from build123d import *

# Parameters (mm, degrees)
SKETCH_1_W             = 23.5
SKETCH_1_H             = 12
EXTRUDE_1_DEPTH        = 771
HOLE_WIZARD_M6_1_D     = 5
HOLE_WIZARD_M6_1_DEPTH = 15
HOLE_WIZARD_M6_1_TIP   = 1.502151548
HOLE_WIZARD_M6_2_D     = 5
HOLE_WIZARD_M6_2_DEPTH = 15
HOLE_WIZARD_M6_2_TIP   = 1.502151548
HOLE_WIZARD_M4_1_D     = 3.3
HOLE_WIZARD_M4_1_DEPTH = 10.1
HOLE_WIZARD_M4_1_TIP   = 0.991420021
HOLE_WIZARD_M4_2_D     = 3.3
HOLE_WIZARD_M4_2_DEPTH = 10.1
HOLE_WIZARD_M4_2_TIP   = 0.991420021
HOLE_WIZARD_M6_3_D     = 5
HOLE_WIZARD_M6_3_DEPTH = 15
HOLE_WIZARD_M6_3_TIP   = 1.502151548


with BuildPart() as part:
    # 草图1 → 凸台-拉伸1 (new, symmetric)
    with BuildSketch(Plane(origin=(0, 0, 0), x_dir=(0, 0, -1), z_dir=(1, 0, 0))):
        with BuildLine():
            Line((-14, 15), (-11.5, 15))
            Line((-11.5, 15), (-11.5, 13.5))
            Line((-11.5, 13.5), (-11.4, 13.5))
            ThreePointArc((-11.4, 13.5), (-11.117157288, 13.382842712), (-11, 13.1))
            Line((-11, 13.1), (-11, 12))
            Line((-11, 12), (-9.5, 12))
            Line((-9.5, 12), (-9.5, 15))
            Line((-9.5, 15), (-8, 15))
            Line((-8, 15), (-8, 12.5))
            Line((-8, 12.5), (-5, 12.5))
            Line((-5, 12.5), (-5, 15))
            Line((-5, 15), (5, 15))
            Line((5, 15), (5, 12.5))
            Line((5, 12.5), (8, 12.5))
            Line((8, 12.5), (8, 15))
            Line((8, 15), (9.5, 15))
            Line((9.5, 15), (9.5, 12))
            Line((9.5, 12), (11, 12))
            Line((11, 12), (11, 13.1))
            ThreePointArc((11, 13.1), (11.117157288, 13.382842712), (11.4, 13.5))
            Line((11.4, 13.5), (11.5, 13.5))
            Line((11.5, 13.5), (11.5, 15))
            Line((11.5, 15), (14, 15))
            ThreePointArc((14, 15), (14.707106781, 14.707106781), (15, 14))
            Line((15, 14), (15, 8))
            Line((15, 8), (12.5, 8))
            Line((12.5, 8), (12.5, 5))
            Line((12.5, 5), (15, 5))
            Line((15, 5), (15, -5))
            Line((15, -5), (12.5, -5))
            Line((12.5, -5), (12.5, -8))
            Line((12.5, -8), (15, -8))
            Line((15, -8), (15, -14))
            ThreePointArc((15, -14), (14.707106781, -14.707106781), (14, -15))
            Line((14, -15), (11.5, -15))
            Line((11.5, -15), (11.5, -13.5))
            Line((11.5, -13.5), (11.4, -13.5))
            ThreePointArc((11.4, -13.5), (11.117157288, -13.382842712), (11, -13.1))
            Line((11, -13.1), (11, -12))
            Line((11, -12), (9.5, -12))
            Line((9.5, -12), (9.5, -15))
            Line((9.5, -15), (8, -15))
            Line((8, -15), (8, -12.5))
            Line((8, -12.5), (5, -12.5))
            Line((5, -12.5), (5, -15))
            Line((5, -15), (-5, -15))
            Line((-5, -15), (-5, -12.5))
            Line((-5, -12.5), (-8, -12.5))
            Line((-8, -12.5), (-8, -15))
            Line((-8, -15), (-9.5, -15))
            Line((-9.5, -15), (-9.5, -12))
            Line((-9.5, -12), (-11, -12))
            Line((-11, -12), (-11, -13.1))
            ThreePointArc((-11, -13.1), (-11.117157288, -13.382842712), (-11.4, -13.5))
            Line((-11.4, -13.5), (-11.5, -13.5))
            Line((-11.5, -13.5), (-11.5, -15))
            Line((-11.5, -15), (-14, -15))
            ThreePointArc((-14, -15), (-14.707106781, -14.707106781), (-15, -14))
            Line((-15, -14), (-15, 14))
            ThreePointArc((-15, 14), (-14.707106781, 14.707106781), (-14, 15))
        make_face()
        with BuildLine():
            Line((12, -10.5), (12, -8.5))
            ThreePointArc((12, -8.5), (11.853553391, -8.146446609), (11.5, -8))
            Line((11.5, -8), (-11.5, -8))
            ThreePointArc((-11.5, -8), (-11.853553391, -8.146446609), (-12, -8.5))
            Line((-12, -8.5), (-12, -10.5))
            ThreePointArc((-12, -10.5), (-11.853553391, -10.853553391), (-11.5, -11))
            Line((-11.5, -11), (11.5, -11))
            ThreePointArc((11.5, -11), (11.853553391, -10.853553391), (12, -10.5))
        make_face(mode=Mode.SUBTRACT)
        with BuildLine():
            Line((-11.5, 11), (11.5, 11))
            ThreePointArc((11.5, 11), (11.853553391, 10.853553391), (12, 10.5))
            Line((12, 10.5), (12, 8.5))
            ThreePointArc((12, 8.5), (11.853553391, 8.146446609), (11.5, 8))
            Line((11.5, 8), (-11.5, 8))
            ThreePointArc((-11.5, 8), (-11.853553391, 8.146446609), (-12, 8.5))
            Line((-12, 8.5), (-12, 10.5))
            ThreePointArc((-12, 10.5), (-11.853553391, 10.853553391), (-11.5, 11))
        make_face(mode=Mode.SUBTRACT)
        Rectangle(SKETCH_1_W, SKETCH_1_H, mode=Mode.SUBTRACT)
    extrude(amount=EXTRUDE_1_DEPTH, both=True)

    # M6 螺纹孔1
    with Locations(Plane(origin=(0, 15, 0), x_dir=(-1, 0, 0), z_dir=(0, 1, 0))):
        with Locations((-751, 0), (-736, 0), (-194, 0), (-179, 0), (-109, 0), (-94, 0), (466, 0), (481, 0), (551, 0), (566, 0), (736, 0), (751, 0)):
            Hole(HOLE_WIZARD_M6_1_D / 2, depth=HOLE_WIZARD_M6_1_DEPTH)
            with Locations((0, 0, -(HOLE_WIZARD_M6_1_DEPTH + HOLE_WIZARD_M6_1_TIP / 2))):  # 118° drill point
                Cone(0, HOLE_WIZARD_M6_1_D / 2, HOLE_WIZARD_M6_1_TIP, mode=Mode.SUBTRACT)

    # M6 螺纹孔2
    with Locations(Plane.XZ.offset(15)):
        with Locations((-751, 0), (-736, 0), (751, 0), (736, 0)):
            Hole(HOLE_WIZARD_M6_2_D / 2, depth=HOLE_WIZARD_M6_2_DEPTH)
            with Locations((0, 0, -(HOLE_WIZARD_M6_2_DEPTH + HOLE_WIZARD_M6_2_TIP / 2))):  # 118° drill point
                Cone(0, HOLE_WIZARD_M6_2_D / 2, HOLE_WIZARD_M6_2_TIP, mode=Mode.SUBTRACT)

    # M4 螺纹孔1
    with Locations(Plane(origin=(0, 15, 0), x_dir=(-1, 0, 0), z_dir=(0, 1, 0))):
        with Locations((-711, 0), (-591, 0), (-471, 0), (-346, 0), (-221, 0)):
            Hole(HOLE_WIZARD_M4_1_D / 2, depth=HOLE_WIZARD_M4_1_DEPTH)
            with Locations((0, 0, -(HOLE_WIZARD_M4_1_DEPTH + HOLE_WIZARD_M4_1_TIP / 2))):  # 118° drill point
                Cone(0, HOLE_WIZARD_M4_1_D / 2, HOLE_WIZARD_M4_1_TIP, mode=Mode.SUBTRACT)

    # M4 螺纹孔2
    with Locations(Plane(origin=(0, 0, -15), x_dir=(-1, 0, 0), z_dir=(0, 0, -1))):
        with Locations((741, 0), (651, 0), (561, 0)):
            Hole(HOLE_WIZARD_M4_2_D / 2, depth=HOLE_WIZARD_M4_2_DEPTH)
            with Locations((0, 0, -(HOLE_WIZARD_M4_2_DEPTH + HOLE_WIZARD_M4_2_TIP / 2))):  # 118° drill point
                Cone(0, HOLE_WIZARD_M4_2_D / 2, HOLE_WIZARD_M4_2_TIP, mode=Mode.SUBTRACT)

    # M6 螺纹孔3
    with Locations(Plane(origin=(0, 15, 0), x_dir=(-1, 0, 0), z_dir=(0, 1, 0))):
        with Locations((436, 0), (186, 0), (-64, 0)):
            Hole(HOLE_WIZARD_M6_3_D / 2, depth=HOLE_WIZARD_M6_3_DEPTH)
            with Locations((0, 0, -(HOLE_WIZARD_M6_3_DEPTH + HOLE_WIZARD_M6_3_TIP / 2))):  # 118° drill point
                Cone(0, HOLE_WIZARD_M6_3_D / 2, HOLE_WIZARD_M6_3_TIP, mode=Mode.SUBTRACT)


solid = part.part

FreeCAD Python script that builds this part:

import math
import FreeCAD as App
import Part
import Sketcher
from FreeCAD import Vector

doc = App.newDocument("Part")
body = doc.addObject("PartDesign::Body", "Body")

sketch1 = body.newObject("Sketcher::SketchObject", "Sketch")
sketch1.AttachmentSupport = (doc.getObject("YZ_Plane"), [""])
sketch1.MapMode = "FlatFace"
sketch1.addGeometry(Part.LineSegment(Vector(15, 11.5, 0), Vector(15, 14, 0)), False)
sketch1.addGeometry(Part.ArcOfCircle(Part.Circle(Vector(14, 14, 0), Vector(0, 0, 1), 1), math.radians(0), math.radians(90)), False)
sketch1.addGeometry(Part.LineSegment(Vector(14, 15, 0), Vector(-14, 15, 0)), False)
sketch1.addGeometry(Part.ArcOfCircle(Part.Circle(Vector(-14, 14, 0), Vector(0, 0, 1), 1), math.radians(90), math.radians(180)), False)
sketch1.addGeometry(Part.LineSegment(Vector(-15, 14, 0), Vector(-15, 11.5, 0)), False)
sketch1.addGeometry(Part.LineSegment(Vector(-15, 11.5, 0), Vector(-13.5, 11.5, 0)), False)
sketch1.addGeometry(Part.LineSegment(Vector(-13.5, 11.5, 0), Vector(-13.5, 11.4, 0)), False)
sketch1.addGeometry(Part.ArcOfCircle(Part.Circle(Vector(-13.1, 11.4, 0), Vector(0, 0, 1), 0.4), math.radians(-180), math.radians(-90)), False)
sketch1.addGeometry(Part.LineSegment(Vector(-13.1, 11, 0), Vector(-12, 11, 0)), False)
sketch1.addGeometry(Part.LineSegment(Vector(-12, 11, 0), Vector(-12, 9.5, 0)), False)
sketch1.addGeometry(Part.LineSegment(Vector(-12, 9.5, 0), Vector(-15, 9.5, 0)), False)
sketch1.addGeometry(Part.LineSegment(Vector(-15, 9.5, 0), Vector(-15, 8, 0)), False)
sketch1.addGeometry(Part.LineSegment(Vector(-15, 8, 0), Vector(-12.5, 8, 0)), False)
sketch1.addGeometry(Part.LineSegment(Vector(-12.5, 8, 0), Vector(-12.5, 5, 0)), False)
sketch1.addGeometry(Part.LineSegment(Vector(-12.5, 5, 0), Vector(-15, 5, 0)), False)
sketch1.addGeometry(Part.LineSegment(Vector(-15, 5, 0), Vector(-15, -5, 0)), False)
sketch1.addGeometry(Part.LineSegment(Vector(-15, -5, 0), Vector(-12.5, -5, 0)), False)
sketch1.addGeometry(Part.LineSegment(Vector(-12.5, -5, 0), Vector(-12.5, -8, 0)), False)
sketch1.addGeometry(Part.LineSegment(Vector(-12.5, -8, 0), Vector(-15, -8, 0)), False)
sketch1.addGeometry(Part.LineSegment(Vector(-15, -8, 0), Vector(-15, -9.5, 0)), False)
sketch1.addGeometry(Part.LineSegment(Vector(-15, -9.5, 0), Vector(-12, -9.5, 0)), False)
sketch1.addGeometry(Part.LineSegment(Vector(-12, -9.5, 0), Vector(-12, -11, 0)), False)
sketch1.addGeometry(Part.LineSegment(Vector(-12, -11, 0), Vector(-13.1, -11, 0)), False)
sketch1.addGeometry(Part.ArcOfCircle(Part.Circle(Vector(-13.1, -11.4, 0), Vector(0, 0, 1), 0.4), math.radians(90), math.radians(180)), False)
sketch1.addGeometry(Part.LineSegment(Vector(-13.5, -11.4, 0), Vector(-13.5, -11.5, 0)), False)
sketch1.addGeometry(Part.LineSegment(Vector(-13.5, -11.5, 0), Vector(-15, -11.5, 0)), False)
sketch1.addGeometry(Part.LineSegment(Vector(-15, -11.5, 0), Vector(-15, -14, 0)), False)
sketch1.addGeometry(Part.ArcOfCircle(Part.Circle(Vector(-14, -14, 0), Vector(0, 0, 1), 1), math.radians(-180), math.radians(-90)), False)
sketch1.addGeometry(Part.LineSegment(Vector(-14, -15, 0), Vector(-8, -15, 0)), False)
sketch1.addGeometry(Part.LineSegment(Vector(-8, -15, 0), Vector(-8, -12.5, 0)), False)
sketch1.addGeometry(Part.LineSegment(Vector(-8, -12.5, 0), Vector(-5, -12.5, 0)), False)
sketch1.addGeometry(Part.LineSegment(Vector(-5, -12.5, 0), Vector(-5, -15, 0)), False)
sketch1.addGeometry(Part.LineSegment(Vector(-5, -15, 0), Vector(5, -15, 0)), False)
sketch1.addGeometry(Part.LineSegment(Vector(5, -15, 0), Vector(5, -12.5, 0)), False)
sketch1.addGeometry(Part.LineSegment(Vector(5, -12.5, 0), Vector(8, -12.5, 0)), False)
sketch1.addGeometry(Part.LineSegment(Vector(8, -12.5, 0), Vector(8, -15, 0)), False)
sketch1.addGeometry(Part.LineSegment(Vector(8, -15, 0), Vector(14, -15, 0)), False)
sketch1.addGeometry(Part.ArcOfCircle(Part.Circle(Vector(14, -14, 0), Vector(0, 0, 1), 1), math.radians(-90), math.radians(0)), False)
sketch1.addGeometry(Part.LineSegment(Vector(15, -14, 0), Vector(15, -11.5, 0)), False)
sketch1.addGeometry(Part.LineSegment(Vector(15, -11.5, 0), Vector(13.5, -11.5, 0)), False)
sketch1.addGeometry(Part.LineSegment(Vector(13.5, -11.5, 0), Vector(13.5, -11.4, 0)), False)
sketch1.addGeometry(Part.ArcOfCircle(Part.Circle(Vector(13.1, -11.4, 0), Vector(0, 0, 1), 0.4), math.radians(0), math.radians(90)), False)
sketch1.addGeometry(Part.LineSegment(Vector(13.1, -11, 0), Vector(12, -11, 0)), False)
sketch1.addGeometry(Part.LineSegment(Vector(12, -11, 0), Vector(12, -9.5, 0)), False)
sketch1.addGeometry(Part.LineSegment(Vector(12, -9.5, 0), Vector(15, -9.5, 0)), False)
sketch1.addGeometry(Part.LineSegment(Vector(15, -9.5, 0), Vector(15, -8, 0)), False)
sketch1.addGeometry(Part.LineSegment(Vector(15, -8, 0), Vector(12.5, -8, 0)), False)
sketch1.addGeometry(Part.LineSegment(Vector(12.5, -8, 0), Vector(12.5, -5, 0)), False)
sketch1.addGeometry(Part.LineSegment(Vector(12.5, -5, 0), Vector(15, -5, 0)), False)
sketch1.addGeometry(Part.LineSegment(Vector(15, -5, 0), Vector(15, 5, 0)), False)
sketch1.addGeometry(Part.LineSegment(Vector(15, 5, 0), Vector(12.5, 5, 0)), False)
sketch1.addGeometry(Part.LineSegment(Vector(12.5, 5, 0), Vector(12.5, 8, 0)), False)
sketch1.addGeometry(Part.LineSegment(Vector(12.5, 8, 0), Vector(15, 8, 0)), False)
sketch1.addGeometry(Part.LineSegment(Vector(15, 8, 0), Vector(15, 9.5, 0)), False)
sketch1.addGeometry(Part.LineSegment(Vector(15, 9.5, 0), Vector(12, 9.5, 0)), False)
sketch1.addGeometry(Part.LineSegment(Vector(12, 9.5, 0), Vector(12, 11, 0)), False)
sketch1.addGeometry(Part.LineSegment(Vector(12, 11, 0), Vector(13.1, 11, 0)), False)
sketch1.addGeometry(Part.ArcOfCircle(Part.Circle(Vector(13.1, 11.4, 0), Vector(0, 0, 1), 0.4), math.radians(-90), math.radians(0)), False)
sketch1.addGeometry(Part.LineSegment(Vector(13.5, 11.4, 0), Vector(13.5, 11.5, 0)), False)
sketch1.addGeometry(Part.LineSegment(Vector(13.5, 11.5, 0), Vector(15, 11.5, 0)), False)
sketch1.addGeometry(Part.ArcOfCircle(Part.Circle(Vector(-10.5, -11.5, 0), Vector(0, 0, 1), 0.5), math.radians(180), math.radians(270)), False)
sketch1.addGeometry(Part.LineSegment(Vector(-11, -11.5, 0), Vector(-11, 11.5, 0)), False)
sketch1.addGeometry(Part.ArcOfCircle(Part.Circle(Vector(-10.5, 11.5, 0), Vector(0, 0, 1), 0.5), math.radians(90), math.radians(180)), False)
sketch1.addGeometry(Part.LineSegment(Vector(-10.5, 12, 0), Vector(-8.5, 12, 0)), False)
sketch1.addGeometry(Part.ArcOfCircle(Part.Circle(Vector(-8.5, 11.5, 0), Vector(0, 0, 1), 0.5), math.radians(0), math.radians(90)), False)
sketch1.addGeometry(Part.LineSegment(Vector(-8, 11.5, 0), Vector(-8, -11.5, 0)), False)
sketch1.addGeometry(Part.ArcOfCircle(Part.Circle(Vector(-8.5, -11.5, 0), Vector(0, 0, 1), 0.5), math.radians(-90), math.radians(0)), False)
sketch1.addGeometry(Part.LineSegment(Vector(-8.5, -12, 0), Vector(-10.5, -12, 0)), False)
sketch1.addGeometry(Part.LineSegment(Vector(-6, 11.75, 0), Vector(6, 11.75, 0)), False)
sketch1.addGeometry(Part.LineSegment(Vector(6, 11.75, 0), Vector(6, -11.75, 0)), False)
sketch1.addGeometry(Part.LineSegment(Vector(6, -11.75, 0), Vector(-6, -11.75, 0)), False)
sketch1.addGeometry(Part.LineSegment(Vector(-6, -11.75, 0), Vector(-6, 11.75, 0)), False)
sketch1.addGeometry(Part.LineSegment(Vector(11, 11.5, 0), Vector(11, -11.5, 0)), False)
sketch1.addGeometry(Part.ArcOfCircle(Part.Circle(Vector(10.5, -11.5, 0), Vector(0, 0, 1), 0.5), math.radians(-90), math.radians(0)), False)
sketch1.addGeometry(Part.LineSegment(Vector(10.5, -12, 0), Vector(8.5, -12, 0)), False)
sketch1.addGeometry(Part.ArcOfCircle(Part.Circle(Vector(8.5, -11.5, 0), Vector(0, 0, 1), 0.5), math.radians(180), math.radians(270)), False)
sketch1.addGeometry(Part.LineSegment(Vector(8, -11.5, 0), Vector(8, 11.5, 0)), False)
sketch1.addGeometry(Part.ArcOfCircle(Part.Circle(Vector(8.5, 11.5, 0), Vector(0, 0, 1), 0.5), math.radians(90), math.radians(180)), False)
sketch1.addGeometry(Part.LineSegment(Vector(8.5, 12, 0), Vector(10.5, 12, 0)), False)
sketch1.addGeometry(Part.ArcOfCircle(Part.Circle(Vector(10.5, 11.5, 0), Vector(0, 0, 1), 0.5), math.radians(0), math.radians(90)), False)
sketch1.addConstraint(Sketcher.Constraint("Tangent", 0, 2, 1, 1))
sketch1.addConstraint(Sketcher.Constraint("Tangent", 1, 2, 2, 1))
sketch1.addConstraint(Sketcher.Constraint("Tangent", 2, 2, 3, 1))
sketch1.addConstraint(Sketcher.Constraint("Tangent", 3, 2, 4, 1))
sketch1.addConstraint(Sketcher.Constraint("Coincident", 4, 2, 5, 1))
sketch1.addConstraint(Sketcher.Constraint("Coincident", 5, 2, 6, 1))
sketch1.addConstraint(Sketcher.Constraint("Tangent", 6, 2, 7, 1))
sketch1.addConstraint(Sketcher.Constraint("Tangent", 7, 2, 8, 1))
sketch1.addConstraint(Sketcher.Constraint("Coincident", 8, 2, 9, 1))
sketch1.addConstraint(Sketcher.Constraint("Coincident", 9, 2, 10, 1))
sketch1.addConstraint(Sketcher.Constraint("Coincident", 10, 2, 11, 1))
sketch1.addConstraint(Sketcher.Constraint("Coincident", 11, 2, 12, 1))
sketch1.addConstraint(Sketcher.Constraint("Coincident", 12, 2, 13, 1))
sketch1.addConstraint(Sketcher.Constraint("Coincident", 13, 2, 14, 1))
sketch1.addConstraint(Sketcher.Constraint("Coincident", 14, 2, 15, 1))
sketch1.addConstraint(Sketcher.Constraint("Coincident", 15, 2, 16, 1))
sketch1.addConstraint(Sketcher.Constraint("Coincident", 16, 2, 17, 1))
sketch1.addConstraint(Sketcher.Constraint("Coincident", 17, 2, 18, 1))
sketch1.addConstraint(Sketcher.Constraint("Coincident", 18, 2, 19, 1))
sketch1.addConstraint(Sketcher.Constraint("Coincident", 19, 2, 20, 1))
sketch1.addConstraint(Sketcher.Constraint("Coincident", 20, 2, 21, 1))
sketch1.addConstraint(Sketcher.Constraint("Coincident", 21, 2, 22, 1))
sketch1.addConstraint(Sketcher.Constraint("Tangent", 22, 2, 23, 1))
sketch1.addConstraint(Sketcher.Constraint("Tangent", 23, 2, 24, 1))
sketch1.addConstraint(Sketcher.Constraint("Coincident", 24, 2, 25, 1))
sketch1.addConstraint(Sketcher.Constraint("Coincident", 25, 2, 26, 1))
sketch1.addConstraint(Sketcher.Constraint("Tangent", 26, 2, 27, 1))
sketch1.addConstraint(Sketcher.Constraint("Tangent", 27, 2, 28, 1))
sketch1.addConstraint(Sketcher.Constraint("Coincident", 28, 2, 29, 1))
sketch1.addConstraint(Sketcher.Constraint("Coincident", 29, 2, 30, 1))
sketch1.addConstraint(Sketcher.Constraint("Coincident", 30, 2, 31, 1))
sketch1.addConstraint(Sketcher.Constraint("Coincident", 31, 2, 32, 1))
sketch1.addConstraint(Sketcher.Constraint("Coincident", 32, 2, 33, 1))
sketch1.addConstraint(Sketcher.Constraint("Coincident", 33, 2, 34, 1))
sketch1.addConstraint(Sketcher.Constraint("Coincident", 34, 2, 35, 1))
sketch1.addConstraint(Sketcher.Constraint("Coincident", 35, 2, 36, 1))
sketch1.addConstraint(Sketcher.Constraint("Tangent", 36, 2, 37, 1))
sketch1.addConstraint(Sketcher.Constraint("Tangent", 37, 2, 38, 1))
sketch1.addConstraint(Sketcher.Constraint("Coincident", 38, 2, 39, 1))
sketch1.addConstraint(Sketcher.Constraint("Coincident", 39, 2, 40, 1))
sketch1.addConstraint(Sketcher.Constraint("Tangent", 40, 2, 41, 1))
sketch1.addConstraint(Sketcher.Constraint("Tangent", 41, 2, 42, 1))
sketch1.addConstraint(Sketcher.Constraint("Coincident", 42, 2, 43, 1))
sketch1.addConstraint(Sketcher.Constraint("Coincident", 43, 2, 44, 1))
sketch1.addConstraint(Sketcher.Constraint("Coincident", 44, 2, 45, 1))
sketch1.addConstraint(Sketcher.Constraint("Coincident", 45, 2, 46, 1))
sketch1.addConstraint(Sketcher.Constraint("Coincident", 46, 2, 47, 1))
sketch1.addConstraint(Sketcher.Constraint("Coincident", 47, 2, 48, 1))
sketch1.addConstraint(Sketcher.Constraint("Coincident", 48, 2, 49, 1))
sketch1.addConstraint(Sketcher.Constraint("Coincident", 49, 2, 50, 1))
sketch1.addConstraint(Sketcher.Constraint("Coincident", 50, 2, 51, 1))
sketch1.addConstraint(Sketcher.Constraint("Coincident", 51, 2, 52, 1))
sketch1.addConstraint(Sketcher.Constraint("Coincident", 52, 2, 53, 1))
sketch1.addConstraint(Sketcher.Constraint("Coincident", 53, 2, 54, 1))
sketch1.addConstraint(Sketcher.Constraint("Coincident", 54, 2, 55, 1))
sketch1.addConstraint(Sketcher.Constraint("Coincident", 55, 2, 56, 1))
sketch1.addConstraint(Sketcher.Constraint("Tangent", 56, 2, 57, 1))
sketch1.addConstraint(Sketcher.Constraint("Tangent", 57, 2, 58, 1))
sketch1.addConstraint(Sketcher.Constraint("Coincident", 58, 2, 59, 1))
sketch1.addConstraint(Sketcher.Constraint("Coincident", 59, 2, 0, 1))
sketch1.addConstraint(Sketcher.Constraint("Tangent", 60, 1, 61, 1))
sketch1.addConstraint(Sketcher.Constraint("Tangent", 61, 2, 62, 2))
sketch1.addConstraint(Sketcher.Constraint("Tangent", 62, 1, 63, 1))
sketch1.addConstraint(Sketcher.Constraint("Tangent", 63, 2, 64, 2))
sketch1.addConstraint(Sketcher.Constraint("Tangent", 64, 1, 65, 1))
sketch1.addConstraint(Sketcher.Constraint("Tangent", 65, 2, 66, 2))
sketch1.addConstraint(Sketcher.Constraint("Tangent", 66, 1, 67, 1))
sketch1.addConstraint(Sketcher.Constraint("Tangent", 67, 2, 60, 2))
sketch1.addConstraint(Sketcher.Constraint("Coincident", 68, 2, 69, 1))
sketch1.addConstraint(Sketcher.Constraint("Coincident", 69, 2, 70, 1))
sketch1.addConstraint(Sketcher.Constraint("Coincident", 70, 2, 71, 1))
sketch1.addConstraint(Sketcher.Constraint("Coincident", 71, 2, 68, 1))
sketch1.addConstraint(Sketcher.Constraint("Tangent", 72, 2, 73, 2))
sketch1.addConstraint(Sketcher.Constraint("Tangent", 73, 1, 74, 1))
sketch1.addConstraint(Sketcher.Constraint("Tangent", 74, 2, 75, 2))
sketch1.addConstraint(Sketcher.Constraint("Tangent", 75, 1, 76, 1))
sketch1.addConstraint(Sketcher.Constraint("Tangent", 76, 2, 77, 2))
sketch1.addConstraint(Sketcher.Constraint("Tangent", 77, 1, 78, 1))
sketch1.addConstraint(Sketcher.Constraint("Tangent", 78, 2, 79, 2))
sketch1.addConstraint(Sketcher.Constraint("Tangent", 79, 1, 72, 1))
sketch1.addConstraint(Sketcher.Constraint("Vertical", 0))
sketch1.addConstraint(Sketcher.Constraint("Horizontal", 2))
sketch1.addConstraint(Sketcher.Constraint("Vertical", 4))
sketch1.addConstraint(Sketcher.Constraint("Horizontal", 5))
sketch1.addConstraint(Sketcher.Constraint("Vertical", 6))
sketch1.addConstraint(Sketcher.Constraint("Horizontal", 8))
sketch1.addConstraint(Sketcher.Constraint("Vertical", 9))
sketch1.addConstraint(Sketcher.Constraint("Horizontal", 10))
sketch1.addConstraint(Sketcher.Constraint("Vertical", 11))
sketch1.addConstraint(Sketcher.Constraint("Horizontal", 12))
sketch1.addConstraint(Sketcher.Constraint("Vertical", 13))
sketch1.addConstraint(Sketcher.Constraint("Horizontal", 14))
sketch1.addConstraint(Sketcher.Constraint("Vertical", 15))
sketch1.addConstraint(Sketcher.Constraint("Horizontal", 16))
sketch1.addConstraint(Sketcher.Constraint("Vertical", 17))
sketch1.addConstraint(Sketcher.Constraint("Horizontal", 18))
sketch1.addConstraint(Sketcher.Constraint("Vertical", 19))
sketch1.addConstraint(Sketcher.Constraint("Horizontal", 20))
sketch1.addConstraint(Sketcher.Constraint("Vertical", 21))
sketch1.addConstraint(Sketcher.Constraint("Horizontal", 22))
sketch1.addConstraint(Sketcher.Constraint("Vertical", 24))
sketch1.addConstraint(Sketcher.Constraint("Horizontal", 25))
sketch1.addConstraint(Sketcher.Constraint("Vertical", 26))
sketch1.addConstraint(Sketcher.Constraint("Horizontal", 28))
sketch1.addConstraint(Sketcher.Constraint("Vertical", 29))
sketch1.addConstraint(Sketcher.Constraint("Horizontal", 30))
sketch1.addConstraint(Sketcher.Constraint("Vertical", 31))
sketch1.addConstraint(Sketcher.Constraint("Horizontal", 32))
sketch1.addConstraint(Sketcher.Constraint("Vertical", 33))
sketch1.addConstraint(Sketcher.Constraint("Horizontal", 34))
sketch1.addConstraint(Sketcher.Constraint("Vertical", 35))
sketch1.addConstraint(Sketcher.Constraint("Horizontal", 36))
sketch1.addConstraint(Sketcher.Constraint("Vertical", 38))
sketch1.addConstraint(Sketcher.Constraint("Horizontal", 39))
sketch1.addConstraint(Sketcher.Constraint("Vertical", 40))
sketch1.addConstraint(Sketcher.Constraint("Horizontal", 42))
sketch1.addConstraint(Sketcher.Constraint("Vertical", 43))
sketch1.addConstraint(Sketcher.Constraint("Horizontal", 44))
sketch1.addConstraint(Sketcher.Constraint("Vertical", 45))
sketch1.addConstraint(Sketcher.Constraint("Horizontal", 46))
sketch1.addConstraint(Sketcher.Constraint("Vertical", 47))
sketch1.addConstraint(Sketcher.Constraint("Horizontal", 48))
sketch1.addConstraint(Sketcher.Constraint("Vertical", 49))
sketch1.addConstraint(Sketcher.Constraint("Horizontal", 50))
sketch1.addConstraint(Sketcher.Constraint("Vertical", 51))
sketch1.addConstraint(Sketcher.Constraint("Horizontal", 52))
sketch1.addConstraint(Sketcher.Constraint("Vertical", 53))
sketch1.addConstraint(Sketcher.Constraint("Horizontal", 54))
sketch1.addConstraint(Sketcher.Constraint("Vertical", 55))
sketch1.addConstraint(Sketcher.Constraint("Horizontal", 56))
sketch1.addConstraint(Sketcher.Constraint("Vertical", 58))
sketch1.addConstraint(Sketcher.Constraint("Horizontal", 59))
sketch1.addConstraint(Sketcher.Constraint("Vertical", 61))
sketch1.addConstraint(Sketcher.Constraint("Horizontal", 63))
sketch1.addConstraint(Sketcher.Constraint("Vertical", 65))
sketch1.addConstraint(Sketcher.Constraint("Horizontal", 67))
sketch1.addConstraint(Sketcher.Constraint("Horizontal", 68))
sketch1.addConstraint(Sketcher.Constraint("Vertical", 69))
sketch1.addConstraint(Sketcher.Constraint("Horizontal", 70))
sketch1.addConstraint(Sketcher.Constraint("Vertical", 71))
sketch1.addConstraint(Sketcher.Constraint("Vertical", 72))
sketch1.addConstraint(Sketcher.Constraint("Horizontal", 74))
sketch1.addConstraint(Sketcher.Constraint("Vertical", 76))
sketch1.addConstraint(Sketcher.Constraint("Horizontal", 78))
sketch1.addConstraint(Sketcher.Constraint("Equal", 1, 3))
sketch1.addConstraint(Sketcher.Constraint("Equal", 7, 23))
sketch1.addConstraint(Sketcher.Constraint("Equal", 3, 27))
sketch1.addConstraint(Sketcher.Constraint("Equal", 27, 37))
sketch1.addConstraint(Sketcher.Constraint("Equal", 23, 41))
sketch1.addConstraint(Sketcher.Constraint("Equal", 41, 57))
sketch1.addConstraint(Sketcher.Constraint("Equal", 60, 62))
sketch1.addConstraint(Sketcher.Constraint("Equal", 62, 64))
sketch1.addConstraint(Sketcher.Constraint("Equal", 64, 66))
sketch1.addConstraint(Sketcher.Constraint("Equal", 66, 73))
sketch1.addConstraint(Sketcher.Constraint("Equal", 73, 75))
sketch1.addConstraint(Sketcher.Constraint("Equal", 75, 77))
sketch1.addConstraint(Sketcher.Constraint("Equal", 77, 79))
sketch1.addConstraint(Sketcher.Constraint("Symmetric", 1, 3, 27, 3, -1, 1))
sketch1.addConstraint(Sketcher.Constraint("Symmetric", 3, 3, 37, 3, -1, 1))
sketch1.addConstraint(Sketcher.Constraint("Symmetric", 7, 3, 41, 3, -1, 1))
sketch1.addConstraint(Sketcher.Constraint("Symmetric", 23, 3, 57, 3, -1, 1))
sketch1.addConstraint(Sketcher.Constraint("Symmetric", 62, 3, 73, 3, -1, 1))
sketch1.addConstraint(Sketcher.Constraint("Symmetric", 66, 3, 77, 3, -1, 1))
sketch1.addConstraint(Sketcher.Constraint("Symmetric", 9, 2, 43, 2, -1, 1))
sketch1.addConstraint(Sketcher.Constraint("Symmetric", 11, 2, 45, 2, -1, 1))
sketch1.addConstraint(Sketcher.Constraint("Symmetric", 13, 2, 47, 2, -1, 1))
sketch1.addConstraint(Sketcher.Constraint("Symmetric", 15, 2, 49, 2, -1, 1))
sketch1.addConstraint(Sketcher.Constraint("Symmetric", 17, 2, 51, 2, -1, 1))
sketch1.addConstraint(Sketcher.Constraint("Symmetric", 19, 2, 53, 2, -1, 1))
sketch1.addConstraint(Sketcher.Constraint("Symmetric", 68, 2, 70, 2, -1, 1))
sketch1.addConstraint(Sketcher.Constraint("Symmetric", 23, 3, 41, 3, -2))
sketch1.addConstraint(Sketcher.Constraint("Symmetric", 30, 2, 33, 2, -2))
sketch1.addConstraint(Sketcher.Constraint("Symmetric", 25, 2, 38, 2, -2))
sketch1.addConstraint(Sketcher.Constraint("Symmetric", 20, 2, 43, 2, -2))
sketch1.addConstraint(Sketcher.Constraint("Symmetric", 18, 2, 45, 2, -2))
sketch1.addConstraint(Sketcher.Constraint("Symmetric", 16, 2, 47, 2, -2))
sketch1.addConstraint(Sketcher.Constraint("Horizontal", 66, 3, 73, 3))
sketch1.addConstraint(Sketcher.Constraint("Horizontal", 79, 3, 4, 2))
sketch1.addConstraint(Sketcher.Constraint("Horizontal", 75, 3, 24, 2))
sketch1.addConstraint(Sketcher.Constraint("Horizontal", 28, 2, 31, 2))
sketch1.addConstraint(Sketcher.Constraint("Horizontal", 5, 2, 58, 2))
sketch1.addConstraint(Sketcher.Constraint("Vertical", 4, 2, 10, 2))
sketch1.addConstraint(Sketcher.Constraint("Vertical", 11, 2, 14, 2))
sketch1.addConstraint(Sketcher.Constraint("Vertical", 43, 2, 54, 2))
sketch1.addConstraint(Sketcher.Constraint("Vertical", 29, 2, 64, 1))
sketch1.addConstraint(Sketcher.Constraint("Vertical", 35, 2, 75, 1))
sketch1.addConstraint(Sketcher.Constraint("Equal", 20, 30))
sketch1.addConstraint(Sketcher.Constraint("Equal", 52, 0))
sketch1.addConstraint(Sketcher.Constraint("Equal", 59, 9))
sketch1.addConstraint(Sketcher.Constraint("Equal", 9, 11))
sketch1.addConstraint(Sketcher.Constraint("Equal", 54, 13))
sketch1.addConstraint(Sketcher.Constraint("Equal", 32, 15))
sketch1.addConstraint(Sketcher.Constraint("Equal", 26, 29))
sketch1.addConstraint(Sketcher.Constraint("Radius", 1, 1.0))
sketch1.addConstraint(Sketcher.Constraint("Radius", 7, 0.4))
sketch1.addConstraint(Sketcher.Constraint("Radius", 60, 0.5))
sketch1.addConstraint(Sketcher.Constraint("DistanceX", 2, 2, 2, 1, 28.0))
sketch1.addConstraint(Sketcher.Constraint("DistanceX", 10, 2, 10, 1, 3.0))
sketch1.addConstraint(Sketcher.Constraint("DistanceX", 28, 1, 28, 2, 6.0))
sketch1.addConstraint(Sketcher.Constraint("DistanceX", 63, 1, 63, 2, 2.0))
sketch1.addConstraint(Sketcher.Constraint("DistanceX", 68, 1, 68, 2, 12.0))
sketch1.addConstraint(Sketcher.Constraint("DistanceY", 61, 1, 61, 2, 23.0))
sketch1.addConstraint(Sketcher.Constraint("DistanceX", 5, 1, 5, 2, 1.5))
sketch1.addConstraint(Sketcher.Constraint("DistanceX", 12, 1, 12, 2, 2.5))
sketch1.addConstraint(Sketcher.Constraint("DistanceY", 69, 2, 69, 1, 23.5))
pad1 = body.newObject("PartDesign::Pad", "Pad")
pad1.Profile = sketch1
pad1.Length = 1542
pad1.Midplane = True

sketch2 = body.newObject("Sketcher::SketchObject", "Sketch001")
sketch2.AttachmentSupport = (doc.getObject("XZ_Plane"), [""])
sketch2.MapMode = "FlatFace"
sketch2.AttachmentOffset = App.Placement(Vector(0, 0, -15), App.Rotation())
sketch2.addGeometry(Part.Circle(Vector(751, 0, 0), Vector(0, 0, 1), 2.5), False)
sketch2.addGeometry(Part.Circle(Vector(736, 0, 0), Vector(0, 0, 1), 2.5), False)
sketch2.addGeometry(Part.Circle(Vector(194, 0, 0), Vector(0, 0, 1), 2.5), False)
sketch2.addGeometry(Part.Circle(Vector(179, 0, 0), Vector(0, 0, 1), 2.5), False)
sketch2.addGeometry(Part.Circle(Vector(109, 0, 0), Vector(0, 0, 1), 2.5), False)
sketch2.addGeometry(Part.Circle(Vector(94, 0, 0), Vector(0, 0, 1), 2.5), False)
sketch2.addGeometry(Part.Circle(Vector(-466, 0, 0), Vector(0, 0, 1), 2.5), False)
sketch2.addGeometry(Part.Circle(Vector(-481, 0, 0), Vector(0, 0, 1), 2.5), False)
sketch2.addGeometry(Part.Circle(Vector(-551, 0, 0), Vector(0, 0, 1), 2.5), False)
sketch2.addGeometry(Part.Circle(Vector(-566, 0, 0), Vector(0, 0, 1), 2.5), False)
sketch2.addGeometry(Part.Circle(Vector(-736, 0, 0), Vector(0, 0, 1), 2.5), False)
sketch2.addGeometry(Part.Circle(Vector(-751, 0, 0), Vector(0, 0, 1), 2.5), False)
sketch2.addConstraint(Sketcher.Constraint("Equal", 0, 1))
sketch2.addConstraint(Sketcher.Constraint("Equal", 1, 2))
sketch2.addConstraint(Sketcher.Constraint("Equal", 2, 3))
sketch2.addConstraint(Sketcher.Constraint("Equal", 3, 4))
sketch2.addConstraint(Sketcher.Constraint("Equal", 4, 5))
sketch2.addConstraint(Sketcher.Constraint("Equal", 5, 6))
sketch2.addConstraint(Sketcher.Constraint("Equal", 6, 7))
sketch2.addConstraint(Sketcher.Constraint("Equal", 7, 8))
sketch2.addConstraint(Sketcher.Constraint("Equal", 8, 9))
sketch2.addConstraint(Sketcher.Constraint("Equal", 9, 10))
sketch2.addConstraint(Sketcher.Constraint("Equal", 10, 11))
sketch2.addConstraint(Sketcher.Constraint("Symmetric", 1, 3, 10, 3, -1, 1))
sketch2.addConstraint(Sketcher.Constraint("Symmetric", 0, 3, 11, 3, -1, 1))
sketch2.addConstraint(Sketcher.Constraint("PointOnObject", 0, 3, -1))
sketch2.addConstraint(Sketcher.Constraint("PointOnObject", 1, 3, -1))
sketch2.addConstraint(Sketcher.Constraint("PointOnObject", 2, 3, -1))
sketch2.addConstraint(Sketcher.Constraint("PointOnObject", 3, 3, -1))
sketch2.addConstraint(Sketcher.Constraint("PointOnObject", 4, 3, -1))
sketch2.addConstraint(Sketcher.Constraint("PointOnObject", 5, 3, -1))
sketch2.addConstraint(Sketcher.Constraint("PointOnObject", 6, 3, -1))
sketch2.addConstraint(Sketcher.Constraint("PointOnObject", 7, 3, -1))
sketch2.addConstraint(Sketcher.Constraint("PointOnObject", 8, 3, -1))
sketch2.addConstraint(Sketcher.Constraint("PointOnObject", 9, 3, -1))
sketch2.addConstraint(Sketcher.Constraint("Diameter", 0, 5.0))
sketch2.addConstraint(Sketcher.Constraint("DistanceX", -1, 1, 0, 3, 751.0))
sketch2.addConstraint(Sketcher.Constraint("DistanceX", -1, 1, 1, 3, 736.0))
sketch2.addConstraint(Sketcher.Constraint("DistanceX", -1, 1, 2, 3, 194.0))
sketch2.addConstraint(Sketcher.Constraint("DistanceX", -1, 1, 3, 3, 179.0))
sketch2.addConstraint(Sketcher.Constraint("DistanceX", -1, 1, 4, 3, 109.0))
sketch2.addConstraint(Sketcher.Constraint("DistanceX", -1, 1, 5, 3, 94.0))
sketch2.addConstraint(Sketcher.Constraint("DistanceX", 6, 3, -1, 1, 466.0))
sketch2.addConstraint(Sketcher.Constraint("DistanceX", 7, 3, -1, 1, 481.0))
sketch2.addConstraint(Sketcher.Constraint("DistanceX", 8, 3, -1, 1, 551.0))
sketch2.addConstraint(Sketcher.Constraint("DistanceX", 9, 3, -1, 1, 566.0))
doc.recompute()
hole = body.newObject("PartDesign::Hole", "Hole")
hole.Profile = sketch2
hole.ThreadType = "None"
hole.Diameter = 5
hole.DepthType = "Dimension"
hole.Depth = 15
hole.DrillPoint = "Angled"
hole.DrillPointAngle = 118
hole.Reversed = True

sketch3 = body.newObject("Sketcher::SketchObject", "Sketch002")
sketch3.AttachmentSupport = (doc.getObject("XZ_Plane"), [""])
sketch3.MapMode = "FlatFace"
sketch3.AttachmentOffset = App.Placement(Vector(0, 0, 15), App.Rotation())
sketch3.addGeometry(Part.Circle(Vector(-751, 0, 0), Vector(0, 0, 1), 2.5), False)
sketch3.addGeometry(Part.Circle(Vector(-736, 0, 0), Vector(0, 0, 1), 2.5), False)
sketch3.addGeometry(Part.Circle(Vector(751, 0, 0), Vector(0, 0, 1), 2.5), False)
sketch3.addGeometry(Part.Circle(Vector(736, 0, 0), Vector(0, 0, 1), 2.5), False)
sketch3.addConstraint(Sketcher.Constraint("Equal", 0, 1))
sketch3.addConstraint(Sketcher.Constraint("Equal", 1, 2))
sketch3.addConstraint(Sketcher.Constraint("Equal", 2, 3))
sketch3.addConstraint(Sketcher.Constraint("Symmetric", 0, 3, 2, 3, -1, 1))
sketch3.addConstraint(Sketcher.Constraint("Symmetric", 1, 3, 3, 3, -1, 1))
sketch3.addConstraint(Sketcher.Constraint("PointOnObject", 0, 3, -1))
sketch3.addConstraint(Sketcher.Constraint("PointOnObject", 1, 3, -1))
sketch3.addConstraint(Sketcher.Constraint("Diameter", 0, 5.0))
sketch3.addConstraint(Sketcher.Constraint("DistanceX", 0, 3, -1, 1, 751.0))
sketch3.addConstraint(Sketcher.Constraint("DistanceX", 1, 3, -1, 1, 736.0))
doc.recompute()
hole2 = body.newObject("PartDesign::Hole", "Hole001")
hole2.Profile = sketch3
hole2.ThreadType = "None"
hole2.Diameter = 5
hole2.DepthType = "Dimension"
hole2.Depth = 15
hole2.DrillPoint = "Angled"
hole2.DrillPointAngle = 118

sketch4 = body.newObject("Sketcher::SketchObject", "Sketch003")
sketch4.AttachmentSupport = (doc.getObject("XZ_Plane"), [""])
sketch4.MapMode = "FlatFace"
sketch4.AttachmentOffset = App.Placement(Vector(0, 0, -15), App.Rotation())
sketch4.addGeometry(Part.Circle(Vector(711, 0, 0), Vector(0, 0, 1), 1.65), False)
sketch4.addGeometry(Part.Circle(Vector(591, 0, 0), Vector(0, 0, 1), 1.65), False)
sketch4.addGeometry(Part.Circle(Vector(471, 0, 0), Vector(0, 0, 1), 1.65), False)
sketch4.addGeometry(Part.Circle(Vector(346, 0, 0), Vector(0, 0, 1), 1.65), False)
sketch4.addGeometry(Part.Circle(Vector(221, 0, 0), Vector(0, 0, 1), 1.65), False)
sketch4.addConstraint(Sketcher.Constraint("Equal", 0, 1))
sketch4.addConstraint(Sketcher.Constraint("Equal", 1, 2))
sketch4.addConstraint(Sketcher.Constraint("Equal", 2, 3))
sketch4.addConstraint(Sketcher.Constraint("Equal", 3, 4))
sketch4.addConstraint(Sketcher.Constraint("PointOnObject", 0, 3, -1))
sketch4.addConstraint(Sketcher.Constraint("PointOnObject", 1, 3, -1))
sketch4.addConstraint(Sketcher.Constraint("PointOnObject", 2, 3, -1))
sketch4.addConstraint(Sketcher.Constraint("PointOnObject", 3, 3, -1))
sketch4.addConstraint(Sketcher.Constraint("PointOnObject", 4, 3, -1))
sketch4.addConstraint(Sketcher.Constraint("Diameter", 0, 3.3))
sketch4.addConstraint(Sketcher.Constraint("DistanceX", -1, 1, 0, 3, 711.0))
sketch4.addConstraint(Sketcher.Constraint("DistanceX", -1, 1, 1, 3, 591.0))
sketch4.addConstraint(Sketcher.Constraint("DistanceX", -1, 1, 2, 3, 471.0))
sketch4.addConstraint(Sketcher.Constraint("DistanceX", -1, 1, 3, 3, 346.0))
sketch4.addConstraint(Sketcher.Constraint("DistanceX", -1, 1, 4, 3, 221.0))
doc.recompute()
hole3 = body.newObject("PartDesign::Hole", "Hole002")
hole3.Profile = sketch4
hole3.ThreadType = "None"
hole3.Diameter = 3.3
hole3.DepthType = "Dimension"
hole3.Depth = 10.1
hole3.DrillPoint = "Angled"
hole3.DrillPointAngle = 118
hole3.Reversed = True

sketch5 = body.newObject("Sketcher::SketchObject", "Sketch004")
sketch5.AttachmentSupport = (doc.getObject("XY_Plane"), [""])
sketch5.MapMode = "FlatFace"
sketch5.AttachmentOffset = App.Placement(Vector(0, 0, -15), App.Rotation())
sketch5.addGeometry(Part.Circle(Vector(-741, 0, 0), Vector(0, 0, 1), 1.65), False)
sketch5.addGeometry(Part.Circle(Vector(-651, 0, 0), Vector(0, 0, 1), 1.65), False)
sketch5.addGeometry(Part.Circle(Vector(-561, 0, 0), Vector(0, 0, 1), 1.65), False)
sketch5.addConstraint(Sketcher.Constraint("Equal", 0, 1))
sketch5.addConstraint(Sketcher.Constraint("Equal", 1, 2))
sketch5.addConstraint(Sketcher.Constraint("PointOnObject", 0, 3, -1))
sketch5.addConstraint(Sketcher.Constraint("PointOnObject", 1, 3, -1))
sketch5.addConstraint(Sketcher.Constraint("PointOnObject", 2, 3, -1))
sketch5.addConstraint(Sketcher.Constraint("Diameter", 0, 3.3))
sketch5.addConstraint(Sketcher.Constraint("DistanceX", 0, 3, -1, 1, 741.0))
sketch5.addConstraint(Sketcher.Constraint("DistanceX", 1, 3, -1, 1, 651.0))
sketch5.addConstraint(Sketcher.Constraint("DistanceX", 2, 3, -1, 1, 561.0))
doc.recompute()
hole4 = body.newObject("PartDesign::Hole", "Hole003")
hole4.Profile = sketch5
hole4.ThreadType = "None"
hole4.Diameter = 3.3
hole4.DepthType = "Dimension"
hole4.Depth = 10.1
hole4.DrillPoint = "Angled"
hole4.DrillPointAngle = 118
hole4.Reversed = True

sketch6 = body.newObject("Sketcher::SketchObject", "Sketch005")
sketch6.AttachmentSupport = (doc.getObject("XZ_Plane"), [""])
sketch6.MapMode = "FlatFace"
sketch6.AttachmentOffset = App.Placement(Vector(0, 0, -15), App.Rotation())
sketch6.addGeometry(Part.Circle(Vector(-436, 0, 0), Vector(0, 0, 1), 2.5), False)
sketch6.addGeometry(Part.Circle(Vector(-186, 0, 0), Vector(0, 0, 1), 2.5), False)
sketch6.addGeometry(Part.Circle(Vector(64, 0, 0), Vector(0, 0, 1), 2.5), False)
sketch6.addConstraint(Sketcher.Constraint("Equal", 0, 1))
sketch6.addConstraint(Sketcher.Constraint("Equal", 1, 2))
sketch6.addConstraint(Sketcher.Constraint("PointOnObject", 0, 3, -1))
sketch6.addConstraint(Sketcher.Constraint("PointOnObject", 1, 3, -1))
sketch6.addConstraint(Sketcher.Constraint("PointOnObject", 2, 3, -1))
sketch6.addConstraint(Sketcher.Constraint("Diameter", 0, 5.0))
sketch6.addConstraint(Sketcher.Constraint("DistanceX", 0, 3, -1, 1, 436.0))
sketch6.addConstraint(Sketcher.Constraint("DistanceX", 1, 3, -1, 1, 186.0))
sketch6.addConstraint(Sketcher.Constraint("DistanceX", -1, 1, 2, 3, 64.0))
doc.recompute()
hole5 = body.newObject("PartDesign::Hole", "Hole004")
hole5.Profile = sketch6
hole5.ThreadType = "None"
hole5.Diameter = 5
hole5.DepthType = "Dimension"
hole5.Depth = 15
hole5.DrillPoint = "Angled"
hole5.DrillPointAngle = 118
hole5.Reversed = True

doc.recompute()
